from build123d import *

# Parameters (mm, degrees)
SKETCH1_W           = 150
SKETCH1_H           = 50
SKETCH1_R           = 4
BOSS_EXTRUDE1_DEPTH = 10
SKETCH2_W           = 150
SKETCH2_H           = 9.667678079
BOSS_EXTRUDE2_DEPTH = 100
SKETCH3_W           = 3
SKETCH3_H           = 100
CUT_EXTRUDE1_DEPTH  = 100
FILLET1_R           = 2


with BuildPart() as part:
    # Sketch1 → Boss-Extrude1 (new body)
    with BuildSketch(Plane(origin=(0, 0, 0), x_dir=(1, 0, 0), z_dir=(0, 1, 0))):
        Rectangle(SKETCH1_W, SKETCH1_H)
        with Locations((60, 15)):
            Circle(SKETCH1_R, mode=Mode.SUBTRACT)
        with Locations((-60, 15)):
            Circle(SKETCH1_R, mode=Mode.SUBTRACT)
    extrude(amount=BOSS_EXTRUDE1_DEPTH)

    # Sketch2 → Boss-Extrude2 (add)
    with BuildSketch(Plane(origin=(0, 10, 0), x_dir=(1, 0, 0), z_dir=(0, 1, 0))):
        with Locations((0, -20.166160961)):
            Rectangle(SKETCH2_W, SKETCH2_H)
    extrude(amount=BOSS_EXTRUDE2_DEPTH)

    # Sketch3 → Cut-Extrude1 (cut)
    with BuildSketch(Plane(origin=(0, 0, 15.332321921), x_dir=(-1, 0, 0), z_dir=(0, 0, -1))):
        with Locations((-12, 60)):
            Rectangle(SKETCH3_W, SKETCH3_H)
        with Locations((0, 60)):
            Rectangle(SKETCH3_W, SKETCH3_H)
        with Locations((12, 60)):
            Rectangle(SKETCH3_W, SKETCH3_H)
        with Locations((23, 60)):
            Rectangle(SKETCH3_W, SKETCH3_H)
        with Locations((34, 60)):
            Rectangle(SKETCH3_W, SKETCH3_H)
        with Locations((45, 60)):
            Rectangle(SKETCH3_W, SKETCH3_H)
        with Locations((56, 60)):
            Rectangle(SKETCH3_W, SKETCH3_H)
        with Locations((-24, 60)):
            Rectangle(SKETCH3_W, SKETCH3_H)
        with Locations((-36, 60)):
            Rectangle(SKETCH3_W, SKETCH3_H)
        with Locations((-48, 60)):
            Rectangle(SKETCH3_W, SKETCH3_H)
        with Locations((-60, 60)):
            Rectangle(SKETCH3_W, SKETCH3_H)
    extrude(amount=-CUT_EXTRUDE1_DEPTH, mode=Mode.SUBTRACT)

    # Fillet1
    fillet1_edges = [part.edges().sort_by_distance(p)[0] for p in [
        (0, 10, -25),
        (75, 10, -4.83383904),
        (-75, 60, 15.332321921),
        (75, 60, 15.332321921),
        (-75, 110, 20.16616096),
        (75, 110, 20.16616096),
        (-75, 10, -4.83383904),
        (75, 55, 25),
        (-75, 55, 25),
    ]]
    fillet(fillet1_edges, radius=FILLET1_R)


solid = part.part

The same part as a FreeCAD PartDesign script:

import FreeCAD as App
import Part
import Sketcher
from FreeCAD import Vector
Q = App.Units.Quantity


def edges_at(feature, points):
    """Names of the edges that pass closest to the given points."""
    edges = feature.Shape.Edges
    near = lambda p: min(range(len(edges)), key=lambda i: edges[i].distToShape(Part.Vertex(*p))[0])
    return sorted({f"Edge{near(p) + 1}" for p in points})

doc = App.newDocument("Part")
params = doc.addObject("Spreadsheet::Sheet", "Params")
for row, (alias, value) in enumerate([
    ("sketch1_diameter", "8 mm"),
    ("sketch1_width", "150 mm"),
    ("sketch1_height", "50 mm"),
    ("pad1_length", "10 mm"),
    ("sketch2_width", "150 mm"),
    ("pad2_length", "100 mm"),
    ("sketch3_width", "3 mm"),
    ("sketch3_height", "100 mm"),
    ("pocket1_length", "100 mm"),
    ("fillet_radius", "2 mm"),
], start=1):
    params.set(f"A{row}", alias)
    params.set(f"B{row}", "=" + value)
    params.setAlias(f"B{row}", alias)

body = doc.addObject("PartDesign::Body", "Body")

sketch1 = body.newObject("Sketcher::SketchObject", "Sketch")
sketch1.AttachmentSupport = (doc.getObject("XZ_Plane"), [""])
sketch1.MapMode = "FlatFace"
sketch1.addGeometry([
    Part.LineSegment(Vector(-75, -25, 0), Vector(-75, 25, 0)),
    Part.LineSegment(Vector(-75, 25, 0), Vector(75, 25, 0)),
    Part.LineSegment(Vector(75, 25, 0), Vector(75, -25, 0)),
    Part.LineSegment(Vector(75, -25, 0), Vector(-75, -25, 0)),
    Part.Circle(Vector(-60, -15, 0), Vector(0, 0, 1), 4),
    Part.Circle(Vector(60, -15, 0), Vector(0, 0, 1), 4),
], False)
sketch1.addConstraint([
    Sketcher.Constraint("Coincident", 0, 2, 1, 1),
    Sketcher.Constraint("Coincident", 1, 2, 2, 1),
    Sketcher.Constraint("Coincident", 2, 2, 3, 1),
    Sketcher.Constraint("Coincident", 3, 2, 0, 1),
    Sketcher.Constraint("Vertical", 0),
    Sketcher.Constraint("Horizontal", 1),
    Sketcher.Constraint("Vertical", 2),
    Sketcher.Constraint("Horizontal", 3),
    Sketcher.Constraint("Equal", 4, 5),
    Sketcher.Constraint("Symmetric", 0, 2, 2, 2, -1, 1),
    Sketcher.Constraint("Symmetric", 4, 3, 5, 3, -2),
    Sketcher.Constraint("Diameter", 4, Q("8 mm")),
    Sketcher.Constraint("DistanceX", 1, 1, 1, 2, Q("150 mm")),
    Sketcher.Constraint("DistanceY", 0, 1, 0, 2, Q("50 mm")),
    Sketcher.Constraint("DistanceX", 4, 3, -1, 1, Q("60 mm")),
    Sketcher.Constraint("DistanceY", 4, 3, -1, 1, Q("15 mm")),
])
sketch1.setExpression("Constraints[11]", "Params.sketch1_diameter")
sketch1.setExpression("Constraints[12]", "Params.sketch1_width")
sketch1.setExpression("Constraints[13]", "Params.sketch1_height")
pad1 = body.newObject("PartDesign::Pad", "Pad")
pad1.Profile = sketch1
pad1.setExpression("Length", "Params.pad1_length")
pad1.Reversed = True

sketch2 = body.newObject("Sketcher::SketchObject", "Sketch001")
sketch2.AttachmentSupport = (doc.getObject("XZ_Plane"), [""])
sketch2.MapMode = "FlatFace"
sketch2.AttachmentOffset = App.Placement(Vector(0, 0, -10), App.Rotation())
sketch2.addGeometry([
    Part.LineSegment(Vector(-75, 15.332322, 0), Vector(-75, 25, 0)),
    Part.LineSegment(Vector(-75, 25, 0), Vector(75, 25, 0)),
    Part.LineSegment(Vector(75, 25, 0), Vector(75, 15.332322, 0)),
    Part.LineSegment(Vector(75, 15.332322, 0), Vector(-75, 15.332322, 0)),
], False)
sketch2.addConstraint([
    Sketcher.Constraint("Coincident", 0, 2, 1, 1),
    Sketcher.Constraint("Coincident", 1, 2, 2, 1),
    Sketcher.Constraint("Coincident", 2, 2, 3, 1),
    Sketcher.Constraint("Coincident", 3, 2, 0, 1),
    Sketcher.Constraint("Vertical", 0),
    Sketcher.Constraint("Horizontal", 1),
    Sketcher.Constraint("Vertical", 2),
    Sketcher.Constraint("Horizontal", 3),
    Sketcher.Constraint("DistanceX", 1, 1, 1, 2, Q("150 mm")),
    Sketcher.Constraint("DistanceX", 0, 2, -1, 1, Q("75 mm")),
    Sketcher.Constraint("DistanceY", -1, 1, 0, 2, Q("25 mm")),
    Sketcher.Constraint("DistanceY", 0, 1, 0, 2, Q("9.667678 mm")),
])
sketch2.setExpression("Constraints[8]", "Params.sketch2_width")
pad2 = body.newObject("PartDesign::Pad", "Pad001")
pad2.Profile = sketch2
pad2.setExpression("Length", "Params.pad2_length")
pad2.Reversed = True

sketch3 = body.newObject("Sketcher::SketchObject", "Sketch002")
sketch3.AttachmentSupport = (doc.getObject("XY_Plane"), [""])
sketch3.MapMode = "FlatFace"
sketch3.AttachmentOffset = App.Placement(Vector(0, 0, 15.332322), App.Rotation())
sketch3.addGeometry([
    Part.LineSegment(Vector(13.5, 110, 0), Vector(13.5, 10, 0)),
    Part.LineSegment(Vector(13.5, 10, 0), Vector(10.5, 10, 0)),
    Part.LineSegment(Vector(10.5, 10, 0), Vector(10.5, 110, 0)),
    Part.LineSegment(Vector(10.5, 110, 0), Vector(13.5, 110, 0)),
    Part.LineSegment(Vector(1.5, 110, 0), Vector(1.5, 10, 0)),
    Part.LineSegment(Vector(1.5, 10, 0), Vector(-1.5, 10, 0)),
    Part.LineSegment(Vector(-1.5, 10, 0), Vector(-1.5, 110, 0)),
    Part.LineSegment(Vector(-1.5, 110, 0), Vector(1.5, 110, 0)),
    Part.LineSegment(Vector(-10.5, 110, 0), Vector(-10.5, 10, 0)),
    Part.LineSegment(Vector(-10.5, 10, 0), Vector(-13.5, 10, 0)),
    Part.LineSegment(Vector(-13.5, 10, 0), Vector(-13.5, 110, 0)),
    Part.LineSegment(Vector(-13.5, 110, 0), Vector(-10.5, 110, 0)),
    Part.LineSegment(Vector(-21.5, 110, 0), Vector(-21.5, 10, 0)),
    Part.LineSegment(Vector(-21.5, 10, 0), Vector(-24.5, 10, 0)),
    Part.LineSegment(Vector(-24.5, 10, 0), Vector(-24.5, 110, 0)),
    Part.LineSegment(Vector(-24.5, 110, 0), Vector(-21.5, 110, 0)),
    Part.LineSegment(Vector(-32.5, 110, 0), Vector(-32.5, 10, 0)),
    Part.LineSegment(Vector(-32.5, 10, 0), Vector(-35.5, 10, 0)),
    Part.LineSegment(Vector(-35.5, 10, 0), Vector(-35.5, 110, 0)),
    Part.LineSegment(Vector(-35.5, 110, 0), Vector(-32.5, 110, 0)),
    Part.LineSegment(Vector(-43.5, 110, 0), Vector(-43.5, 10, 0)),
    Part.LineSegment(Vector(-43.5, 10, 0), Vector(-46.5, 10, 0)),
    Part.LineSegment(Vector(-46.5, 10, 0), Vector(-46.5, 110, 0)),
    Part.LineSegment(Vector(-46.5, 110, 0), Vector(-43.5, 110, 0)),
    Part.LineSegment(Vector(-54.5, 110, 0), Vector(-54.5, 10, 0)),
    Part.LineSegment(Vector(-54.5, 10, 0), Vector(-57.5, 10, 0)),
    Part.LineSegment(Vector(-57.5, 10, 0), Vector(-57.5, 110, 0)),
    Part.LineSegment(Vector(-57.5, 110, 0), Vector(-54.5, 110, 0)),
    Part.LineSegment(Vector(25.5, 110, 0), Vector(25.5, 10, 0)),
    Part.LineSegment(Vector(25.5, 10, 0), Vector(22.5, 10, 0)),
    Part.LineSegment(Vector(22.5, 10, 0), Vector(22.5, 110, 0)),
    Part.LineSegment(Vector(22.5, 110, 0), Vector(25.5, 110, 0)),
    Part.LineSegment(Vector(37.5, 110, 0), Vector(37.5, 10, 0)),
    Part.LineSegment(Vector(37.5, 10, 0), Vector(34.5, 10, 0)),
    Part.LineSegment(Vector(34.5, 10, 0), Vector(34.5, 110, 0)),
    Part.LineSegment(Vector(34.5, 110, 0), Vector(37.5, 110, 0)),
    Part.LineSegment(Vector(49.5, 110, 0), Vector(49.5, 10, 0)),
    Part.LineSegment(Vector(49.5, 10, 0), Vector(46.5, 10, 0)),
    Part.LineSegment(Vector(46.5, 10, 0), Vector(46.5, 110, 0)),
    Part.LineSegment(Vector(46.5, 110, 0), Vector(49.5, 110, 0)),
    Part.LineSegment(Vector(61.5, 110, 0), Vector(61.5, 10, 0)),
    Part.LineSegment(Vector(61.5, 10, 0), Vector(58.5, 10, 0)),
    Part.LineSegment(Vector(58.5, 10, 0), Vector(58.5, 110, 0)),
    Part.LineSegment(Vector(58.5, 110, 0), Vector(61.5, 110, 0)),
], False)
sketch3.addConstraint([
    Sketcher.Constraint("Coincident", 0, 2, 1, 1),
    Sketcher.Constraint("Coincident", 1, 2, 2, 1),
    Sketcher.Constraint("Coincident", 2, 2, 3, 1),
    Sketcher.Constraint("Coincident", 3, 2, 0, 1),
    Sketcher.Constraint("Coincident", 4, 2, 5, 1),
    Sketcher.Constraint("Coincident", 5, 2, 6, 1),
    Sketcher.Constraint("Coincident", 6, 2, 7, 1),
    Sketcher.Constraint("Coincident", 7, 2, 4, 1),
    Sketcher.Constraint("Coincident", 8, 2, 9, 1),
    Sketcher.Constraint("Coincident", 9, 2, 10, 1),
    Sketcher.Constraint("Coincident", 10, 2, 11, 1),
    Sketcher.Constraint("Coincident", 11, 2, 8, 1),
    Sketcher.Constraint("Coincident", 12, 2, 13, 1),
    Sketcher.Constraint("Coincident", 13, 2, 14, 1),
    Sketcher.Constraint("Coincident", 14, 2, 15, 1),
    Sketcher.Constraint("Coincident", 15, 2, 12, 1),
    Sketcher.Constraint("Coincident", 16, 2, 17, 1),
    Sketcher.Constraint("Coincident", 17, 2, 18, 1),
    Sketcher.Constraint("Coincident", 18, 2, 19, 1),
    Sketcher.Constraint("Coincident", 19, 2, 16, 1),
    Sketcher.Constraint("Coincident", 20, 2, 21, 1),
    Sketcher.Constraint("Coincident", 21, 2, 22, 1),
    Sketcher.Constraint("Coincident", 22, 2, 23, 1),
    Sketcher.Constraint("Coincident", 23, 2, 20, 1),
    Sketcher.Constraint("Coincident", 24, 2, 25, 1),
    Sketcher.Constraint("Coincident", 25, 2, 26, 1),
    Sketcher.Constraint("Coincident", 26, 2, 27, 1),
    Sketcher.Constraint("Coincident", 27, 2, 24, 1),
    Sketcher.Constraint("Coincident", 28, 2, 29, 1),
    Sketcher.Constraint("Coincident", 29, 2, 30, 1),
    Sketcher.Constraint("Coincident", 30, 2, 31, 1),
    Sketcher.Constraint("Coincident", 31, 2, 28, 1),
    Sketcher.Constraint("Coincident", 32, 2, 33, 1),
    Sketcher.Constraint("Coincident", 33, 2, 34, 1),
    Sketcher.Constraint("Coincident", 34, 2, 35, 1),
    Sketcher.Constraint("Coincident", 35, 2, 32, 1),
    Sketcher.Constraint("Coincident", 36, 2, 37, 1),
    Sketcher.Constraint("Coincident", 37, 2, 38, 1),
    Sketcher.Constraint("Coincident", 38, 2, 39, 1),
    Sketcher.Constraint("Coincident", 39, 2, 36, 1),
    Sketcher.Constraint("Coincident", 40, 2, 41, 1),
    Sketcher.Constraint("Coincident", 41, 2, 42, 1),
    Sketcher.Constraint("Coincident", 42, 2, 43, 1),
    Sketcher.Constraint("Coincident", 43, 2, 40, 1),
    Sketcher.Constraint("Vertical", 0),
    Sketcher.Constraint("Horizontal", 1),
    Sketcher.Constraint("Vertical", 2),
    Sketcher.Constraint("Horizontal", 3),
    Sketcher.Constraint("Vertical", 4),
    Sketcher.Constraint("Horizontal", 5),
    Sketcher.Constraint("Vertical", 6),
    Sketcher.Constraint("Horizontal", 7),
    Sketcher.Constraint("Vertical", 8),
    Sketcher.Constraint("Horizontal", 9),
    Sketcher.Constraint("Vertical", 10),
    Sketcher.Constraint("Horizontal", 11),
    Sketcher.Constraint("Vertical", 12),
    Sketcher.Constraint("Horizontal", 13),
    Sketcher.Constraint("Vertical", 14),
    Sketcher.Constraint("Horizontal", 15),
    Sketcher.Constraint("Vertical", 16),
    Sketcher.Constraint("Horizontal", 17),
    Sketcher.Constraint("Vertical", 18),
    Sketcher.Constraint("Horizontal", 19),
    Sketcher.Constraint("Vertical", 20),
    Sketcher.Constraint("Horizontal", 21),
    Sketcher.Constraint("Vertical", 22),
    Sketcher.Constraint("Horizontal", 23),
    Sketcher.Constraint("Vertical", 24),
    Sketcher.Constraint("Horizontal", 25),
    Sketcher.Constraint("Vertical", 26),
    Sketcher.Constraint("Horizontal", 27),
    Sketcher.Constraint("Vertical", 28),
    Sketcher.Constraint("Horizontal", 29),
    Sketcher.Constraint("Vertical", 30),
    Sketcher.Constraint("Horizontal", 31),
    Sketcher.Constraint("Vertical", 32),
    Sketcher.Constraint("Horizontal", 33),
    Sketcher.Constraint("Vertical", 34),
    Sketcher.Constraint("Horizontal", 35),
    Sketcher.Constraint("Vertical", 36),
    Sketcher.Constraint("Horizontal", 37),
    Sketcher.Constraint("Vertical", 38),
    Sketcher.Constraint("Horizontal", 39),
    Sketcher.Constraint("Vertical", 40),
    Sketcher.Constraint("Horizontal", 41),
    Sketcher.Constraint("Vertical", 42),
    Sketcher.Constraint("Horizontal", 43),
    Sketcher.Constraint("Symmetric", 1, 2, 8, 2, -2),
    Sketcher.Constraint("Symmetric", 3, 2, 10, 2, -2),
    Sketcher.Constraint("Symmetric", 21, 2, 37, 2, -2),
    Sketcher.Constraint("Horizontal", 1, 2, 4, 2),
    Sketcher.Constraint("Horizontal", 3, 2, 6, 2),
    Sketcher.Constraint("Horizontal", 9, 2, 12, 2),
    Sketcher.Constraint("Horizontal", 11, 2, 14, 2),
    Sketcher.Constraint("Horizontal", 13, 2, 16, 2),
    Sketcher.Constraint("Horizontal", 15, 2, 18, 2),
    Sketcher.Constraint("Horizontal", 17, 2, 20, 2),
    Sketcher.Constraint("Horizontal", 19, 2, 22, 2),
    Sketcher.Constraint("Horizontal", 21, 2, 24, 2),
    Sketcher.Constraint("Horizontal", 23, 2, 26, 2),
    Sketcher.Constraint("Horizontal", 25, 2, 28, 2),
    Sketcher.Constraint("Horizontal", 27, 2, 30, 2),
    Sketcher.Constraint("Horizontal", 29, 2, 32, 2),
    Sketcher.Constraint("Horizontal", 31, 2, 34, 2),
    Sketcher.Constraint("Horizontal", 35, 2, 38, 2),
    Sketcher.Constraint("Horizontal", 37, 2, 40, 2),
    Sketcher.Constraint("Horizontal", 39, 2, 42, 2),
    Sketcher.Constraint("Equal", 3, 5),
    Sketcher.Constraint("Equal", 11, 13),
    Sketcher.Constraint("Equal", 15, 17),
    Sketcher.Constraint("Equal", 19, 21),
    Sketcher.Constraint("Equal", 23, 25),
    Sketcher.Constraint("Equal", 27, 29),
    Sketcher.Constraint("Equal", 31, 33),
    Sketcher.Constraint("Equal", 35, 37),
    Sketcher.Constraint("Equal", 39, 41),
    Sketcher.Constraint("DistanceX", 1, 2, 1, 1, Q("3 mm")),
    Sketcher.Constraint("DistanceY", 0, 2, 0, 1, Q("100 mm")),
    Sketcher.Constraint("DistanceY", -1, 1, 0, 2, Q("10 mm")),
    Sketcher.Constraint("DistanceX", 4, 2, 1, 2, Q("9 mm")),
    Sketcher.Constraint("DistanceX", 8, 2, 5, 2, Q("9 mm")),
    Sketcher.Constraint("DistanceX", 12, 2, 9, 2, Q("8 mm")),
    Sketcher.Constraint("DistanceX", 16, 2, 13, 2, Q("8 mm")),
    Sketcher.Constraint("DistanceX", 20, 2, 17, 2, Q("8 mm")),
    Sketcher.Constraint("DistanceX", 24, 2, 21, 2, Q("8 mm")),
    Sketcher.Constraint("DistanceX", 0, 2, 28, 2, Q("12 mm")),
    Sketcher.Constraint("DistanceX", 28, 2, 32, 2, Q("12 mm")),
    Sketcher.Constraint("DistanceX", 36, 2, 40, 2, Q("12 mm")),
])
sketch3.setExpression("Constraints[117]", "Params.sketch3_width")
sketch3.setExpression("Constraints[118]", "Params.sketch3_height")
pocket1 = body.newObject("PartDesign::Pocket", "Pocket")
pocket1.Profile = sketch3
pocket1.setExpression("Length", "Params.pocket1_length")
pocket1.Reversed = True
doc.recompute()

fillet = body.newObject("PartDesign::Fillet", "Fillet")
fillet.Base = (pocket1, edges_at(pocket1, [
    (0, 10, -25),
    (75, 10, -4.834),
    (-75, 60, 15.332),
    (75, 60, 15.332),
    (-75, 110, 20.166),
    (75, 110, 20.166),
    (-75, 10, -4.834),
    (75, 60, 25),
    (-75, 60, 25),
]))
fillet.setExpression("Radius", "Params.fillet_radius")

doc.recompute()
